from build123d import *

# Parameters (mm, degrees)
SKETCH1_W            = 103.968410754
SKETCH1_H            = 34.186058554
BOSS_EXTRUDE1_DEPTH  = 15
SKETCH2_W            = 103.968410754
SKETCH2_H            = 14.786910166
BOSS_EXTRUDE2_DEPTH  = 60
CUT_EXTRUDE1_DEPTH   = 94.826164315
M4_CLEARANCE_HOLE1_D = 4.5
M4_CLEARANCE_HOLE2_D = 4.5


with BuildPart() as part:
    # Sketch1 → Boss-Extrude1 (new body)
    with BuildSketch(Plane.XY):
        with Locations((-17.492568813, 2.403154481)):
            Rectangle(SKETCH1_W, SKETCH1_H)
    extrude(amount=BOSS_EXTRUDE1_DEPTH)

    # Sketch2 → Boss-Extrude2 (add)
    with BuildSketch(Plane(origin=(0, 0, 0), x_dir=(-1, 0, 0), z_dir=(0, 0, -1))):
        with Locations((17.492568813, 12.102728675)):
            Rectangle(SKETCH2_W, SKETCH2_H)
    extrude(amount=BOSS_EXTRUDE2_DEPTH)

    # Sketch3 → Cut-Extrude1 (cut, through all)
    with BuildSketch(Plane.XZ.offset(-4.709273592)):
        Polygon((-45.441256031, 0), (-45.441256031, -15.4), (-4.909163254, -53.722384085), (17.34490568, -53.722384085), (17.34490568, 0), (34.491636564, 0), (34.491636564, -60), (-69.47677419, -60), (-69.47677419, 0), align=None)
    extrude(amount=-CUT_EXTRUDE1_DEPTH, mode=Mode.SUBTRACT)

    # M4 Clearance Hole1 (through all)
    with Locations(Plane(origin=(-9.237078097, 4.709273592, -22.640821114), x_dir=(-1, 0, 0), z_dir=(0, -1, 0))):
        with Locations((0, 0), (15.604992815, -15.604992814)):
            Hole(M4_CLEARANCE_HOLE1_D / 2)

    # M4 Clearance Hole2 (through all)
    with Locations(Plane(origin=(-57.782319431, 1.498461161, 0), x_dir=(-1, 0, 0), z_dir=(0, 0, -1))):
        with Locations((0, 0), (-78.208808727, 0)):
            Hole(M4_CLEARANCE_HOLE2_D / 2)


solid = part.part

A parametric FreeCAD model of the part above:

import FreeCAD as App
import Part
import Sketcher
Q = App.Units.Quantity

doc = App.newDocument("Part")
body = doc.addObject("PartDesign::Body", "Body")

sketch1 = body.newObject("Sketcher::SketchObject", "Sketch")
sketch1.AttachmentSupport = (doc.getObject("XY_Plane"), [""])
sketch1.MapMode = "FlatFace"
sketch1.addGeometry(Part.LineSegment(App.Vector(-69.476774, 19.496184, 0), App.Vector(-69.476774, -14.689875, 0)), False)
sketch1.addGeometry(Part.LineSegment(App.Vector(-69.476774, -14.689875, 0), App.Vector(34.491637, -14.689875, 0)), False)
sketch1.addGeometry(Part.LineSegment(App.Vector(34.491637, -14.689875, 0), App.Vector(34.491637, 19.496184, 0)), False)
sketch1.addGeometry(Part.LineSegment(App.Vector(34.491637, 19.496184, 0), App.Vector(-69.476774, 19.496184, 0)), False)
sketch1.addConstraint(Sketcher.Constraint("Coincident", 0, 2, 1, 1))
sketch1.addConstraint(Sketcher.Constraint("Coincident", 1, 2, 2, 1))
sketch1.addConstraint(Sketcher.Constraint("Coincident", 2, 2, 3, 1))
sketch1.addConstraint(Sketcher.Constraint("Coincident", 3, 2, 0, 1))
sketch1.addConstraint(Sketcher.Constraint("Vertical", 0))
sketch1.addConstraint(Sketcher.Constraint("Horizontal", 1))
sketch1.addConstraint(Sketcher.Constraint("Vertical", 2))
sketch1.addConstraint(Sketcher.Constraint("Horizontal", 3))
sketch1.addConstraint(Sketcher.Constraint("DistanceX", 1, 1, 1, 2, Q("103.968411 mm")))
sketch1.addConstraint(Sketcher.Constraint("DistanceY", 0, 2, 0, 1, Q("34.186059 mm")))
sketch1.addConstraint(Sketcher.Constraint("DistanceX", 0, 2, -1, 1, Q("69.476774 mm")))
sketch1.addConstraint(Sketcher.Constraint("DistanceY", 0, 2, -1, 1, Q("14.689875 mm")))
pad1 = body.newObject("PartDesign::Pad", "Pad")
pad1.Profile = sketch1
pad1.Length = 15

sketch2 = body.newObject("Sketcher::SketchObject", "Sketch001")
sketch2.AttachmentSupport = (doc.getObject("XY_Plane"), [""])
sketch2.MapMode = "FlatFace"
sketch2.addGeometry(Part.LineSegment(App.Vector(34.491637, 19.496184, 0), App.Vector(34.491637, 4.709274, 0)), False)
sketch2.addGeometry(Part.LineSegment(App.Vector(34.491637, 4.709274, 0), App.Vector(-69.476774, 4.709274, 0)), False)
sketch2.addGeometry(Part.LineSegment(App.Vector(-69.476774, 4.709274, 0), App.Vector(-69.476774, 19.496184, 0)), False)
sketch2.addGeometry(Part.LineSegment(App.Vector(-69.476774, 19.496184, 0), App.Vector(34.491637, 19.496184, 0)), False)
sketch2.addConstraint(Sketcher.Constraint("Coincident", 0, 2, 1, 1))
sketch2.addConstraint(Sketcher.Constraint("Coincident", 1, 2, 2, 1))
sketch2.addConstraint(Sketcher.Constraint("Coincident", 2, 2, 3, 1))
sketch2.addConstraint(Sketcher.Constraint("Coincident", 3, 2, 0, 1))
sketch2.addConstraint(Sketcher.Constraint("Vertical", 0))
sketch2.addConstraint(Sketcher.Constraint("Horizontal", 1))
sketch2.addConstraint(Sketcher.Constraint("Vertical", 2))
sketch2.addConstraint(Sketcher.Constraint("Horizontal", 3))
sketch2.addConstraint(Sketcher.Constraint("DistanceX", 1, 2, 1, 1, Q("103.968411 mm")))
sketch2.addConstraint(Sketcher.Constraint("DistanceY", 0, 2, 0, 1, Q("14.78691 mm")))
sketch2.addConstraint(Sketcher.Constraint("DistanceX", -1, 1, 0, 2, Q("34.491637 mm")))
sketch2.addConstraint(Sketcher.Constraint("DistanceY", -1, 1, 0, 2, Q("4.709274 mm")))
pad2 = body.newObject("PartDesign::Pad", "Pad001")
pad2.Profile = sketch2
pad2.Length = 60
pad2.Reversed = True

sketch3 = body.newObject("Sketcher::SketchObject", "Sketch002")
sketch3.AttachmentSupport = (doc.getObject("XZ_Plane"), [""])
sketch3.MapMode = "FlatFace"
sketch3.AttachmentOffset = App.Placement(App.Vector(0, 0, -4.709274), App.Rotation())
sketch3.addGeometry(Part.LineSegment(App.Vector(-45.441256, -15.4, 0), App.Vector(-45.441256, 0, 0)), False)
sketch3.addGeometry(Part.LineSegment(App.Vector(-45.441256, 0, 0), App.Vector(-69.476774, 0, 0)), False)
sketch3.addGeometry(Part.LineSegment(App.Vector(-69.476774, 0, 0), App.Vector(-69.476774, -60, 0)), False)
sketch3.addGeometry(Part.LineSegment(App.Vector(-69.476774, -60, 0), App.Vector(34.491637, -60, 0)), False)
sketch3.addGeometry(Part.LineSegment(App.Vector(34.491637, -60, 0), App.Vector(34.491637, 0, 0)), False)
sketch3.addGeometry(Part.LineSegment(App.Vector(34.491637, 0, 0), App.Vector(17.344906, 0, 0)), False)
sketch3.addGeometry(Part.LineSegment(App.Vector(17.344906, 0, 0), App.Vector(17.344906, -53.722384, 0)), False)
sketch3.addGeometry(Part.LineSegment(App.Vector(17.344906, -53.722384, 0), App.Vector(-4.909163, -53.722384, 0)), False)
sketch3.addGeometry(Part.LineSegment(App.Vector(-4.909163, -53.722384, 0), App.Vector(-45.441256, -15.4, 0)), False)
sketch3.addConstraint(Sketcher.Constraint("Coincident", 0, 2, 1, 1))
sketch3.addConstraint(Sketcher.Constraint("Coincident", 1, 2, 2, 1))
sketch3.addConstraint(Sketcher.Constraint("Coincident", 2, 2, 3, 1))
sketch3.addConstraint(Sketcher.Constraint("Coincident", 3, 2, 4, 1))
sketch3.addConstraint(Sketcher.Constraint("Coincident", 4, 2, 5, 1))
sketch3.addConstraint(Sketcher.Constraint("Coincident", 5, 2, 6, 1))
sketch3.addConstraint(Sketcher.Constraint("Coincident", 6, 2, 7, 1))
sketch3.addConstraint(Sketcher.Constraint("Coincident", 7, 2, 8, 1))
sketch3.addConstraint(Sketcher.Constraint("Coincident", 8, 2, 0, 1))
sketch3.addConstraint(Sketcher.Constraint("Vertical", 0))
sketch3.addConstraint(Sketcher.Constraint("Horizontal", 1))
sketch3.addConstraint(Sketcher.Constraint("Vertical", 2))
sketch3.addConstraint(Sketcher.Constraint("Horizontal", 3))
sketch3.addConstraint(Sketcher.Constraint("Vertical", 4))
sketch3.addConstraint(Sketcher.Constraint("Horizontal", 5))
sketch3.addConstraint(Sketcher.Constraint("Vertical", 6))
sketch3.addConstraint(Sketcher.Constraint("Horizontal", 7))
sketch3.addConstraint(Sketcher.Constraint("PointOnObject", 0, 2, -1))
sketch3.addConstraint(Sketcher.Constraint("PointOnObject", 4, 2, -1))
sketch3.addConstraint(Sketcher.Constraint("DistanceY", 2, 2, 2, 1, Q("60 mm")))
sketch3.addConstraint(Sketcher.Constraint("DistanceY", 0, 1, 0, 2, Q("15.4 mm")))
sketch3.addConstraint(Sketcher.Constraint("DistanceX", 1, 2, 1, 1, Q("24.035518 mm")))
sketch3.addConstraint(Sketcher.Constraint("DistanceX", 3, 1, 3, 2, Q("103.968411 mm")))
sketch3.addConstraint(Sketcher.Constraint("DistanceX", 5, 2, 5, 1, Q("17.146731 mm")))
sketch3.addConstraint(Sketcher.Constraint("DistanceX", 7, 2, 7, 1, Q("22.254069 mm")))
sketch3.addConstraint(Sketcher.Constraint("DistanceY", 6, 2, 6, 1, Q("53.722384 mm")))
sketch3.addConstraint(Sketcher.Constraint("DistanceX", 0, 2, -1, 1, Q("45.441256 mm")))
pocket1 = body.newObject("PartDesign::Pocket", "Pocket")
pocket1.Profile = sketch3
pocket1.Type = "ThroughAll"

sketch4 = body.newObject("Sketcher::SketchObject", "Sketch003")
sketch4.AttachmentSupport = (doc.getObject("XZ_Plane"), [""])
sketch4.MapMode = "FlatFace"
sketch4.AttachmentOffset = App.Placement(App.Vector(0, 0, -4.709274), App.Rotation())
sketch4.addGeometry(Part.Circle(App.Vector(-9.237078, -22.640821, 0), App.Vector(0, 0, 1), 2.25), False)
sketch4.addGeometry(Part.Circle(App.Vector(-24.842071, -7.035828, 0), App.Vector(0, 0, 1), 2.25), False)
sketch4.addConstraint(Sketcher.Constraint("Equal", 0, 1))
sketch4.addConstraint(Sketcher.Constraint("Diameter", 0, Q("4.5 mm")))
sketch4.addConstraint(Sketcher.Constraint("DistanceX", 0, 3, -1, 1, Q("9.237078 mm")))
sketch4.addConstraint(Sketcher.Constraint("DistanceY", 0, 3, -1, 1, Q("22.640821 mm")))
sketch4.addConstraint(Sketcher.Constraint("DistanceX", 1, 3, -1, 1, Q("24.842071 mm")))
sketch4.addConstraint(Sketcher.Constraint("DistanceY", 1, 3, -1, 1, Q("7.035828 mm")))
doc.recompute()
hole = body.newObject("PartDesign::Hole", "Hole")
hole.Profile = sketch4
hole.ThreadType = "None"
hole.Diameter = 4.5
hole.DepthType = "ThroughAll"

sketch5 = body.newObject("Sketcher::SketchObject", "Sketch004")
sketch5.AttachmentSupport = (doc.getObject("XY_Plane"), [""])
sketch5.MapMode = "FlatFace"
sketch5.addGeometry(Part.Circle(App.Vector(-57.782319, 1.498461, 0), App.Vector(0, 0, 1), 2.25), False)
sketch5.addGeometry(Part.Circle(App.Vector(20.426489, 1.498461, 0), App.Vector(0, 0, 1), 2.25), False)
sketch5.addConstraint(Sketcher.Constraint("Equal", 0, 1))
sketch5.addConstraint(Sketcher.Constraint("Horizontal", 0, 3, 1, 3))
sketch5.addConstraint(Sketcher.Constraint("Diameter", 0, Q("4.5 mm")))
sketch5.addConstraint(Sketcher.Constraint("DistanceX", 0, 3, -1, 1, Q("57.782319 mm")))
sketch5.addConstraint(Sketcher.Constraint("DistanceY", -1, 1, 0, 3, Q("1.498461 mm")))
sketch5.addConstraint(Sketcher.Constraint("DistanceX", -1, 1, 1, 3, Q("20.426489 mm")))
doc.recompute()
hole2 = body.newObject("PartDesign::Hole", "Hole001")
hole2.Profile = sketch5
hole2.ThreadType = "None"
hole2.Diameter = 4.5
hole2.DepthType = "ThroughAll"
hole2.Reversed = True

doc.recompute()
